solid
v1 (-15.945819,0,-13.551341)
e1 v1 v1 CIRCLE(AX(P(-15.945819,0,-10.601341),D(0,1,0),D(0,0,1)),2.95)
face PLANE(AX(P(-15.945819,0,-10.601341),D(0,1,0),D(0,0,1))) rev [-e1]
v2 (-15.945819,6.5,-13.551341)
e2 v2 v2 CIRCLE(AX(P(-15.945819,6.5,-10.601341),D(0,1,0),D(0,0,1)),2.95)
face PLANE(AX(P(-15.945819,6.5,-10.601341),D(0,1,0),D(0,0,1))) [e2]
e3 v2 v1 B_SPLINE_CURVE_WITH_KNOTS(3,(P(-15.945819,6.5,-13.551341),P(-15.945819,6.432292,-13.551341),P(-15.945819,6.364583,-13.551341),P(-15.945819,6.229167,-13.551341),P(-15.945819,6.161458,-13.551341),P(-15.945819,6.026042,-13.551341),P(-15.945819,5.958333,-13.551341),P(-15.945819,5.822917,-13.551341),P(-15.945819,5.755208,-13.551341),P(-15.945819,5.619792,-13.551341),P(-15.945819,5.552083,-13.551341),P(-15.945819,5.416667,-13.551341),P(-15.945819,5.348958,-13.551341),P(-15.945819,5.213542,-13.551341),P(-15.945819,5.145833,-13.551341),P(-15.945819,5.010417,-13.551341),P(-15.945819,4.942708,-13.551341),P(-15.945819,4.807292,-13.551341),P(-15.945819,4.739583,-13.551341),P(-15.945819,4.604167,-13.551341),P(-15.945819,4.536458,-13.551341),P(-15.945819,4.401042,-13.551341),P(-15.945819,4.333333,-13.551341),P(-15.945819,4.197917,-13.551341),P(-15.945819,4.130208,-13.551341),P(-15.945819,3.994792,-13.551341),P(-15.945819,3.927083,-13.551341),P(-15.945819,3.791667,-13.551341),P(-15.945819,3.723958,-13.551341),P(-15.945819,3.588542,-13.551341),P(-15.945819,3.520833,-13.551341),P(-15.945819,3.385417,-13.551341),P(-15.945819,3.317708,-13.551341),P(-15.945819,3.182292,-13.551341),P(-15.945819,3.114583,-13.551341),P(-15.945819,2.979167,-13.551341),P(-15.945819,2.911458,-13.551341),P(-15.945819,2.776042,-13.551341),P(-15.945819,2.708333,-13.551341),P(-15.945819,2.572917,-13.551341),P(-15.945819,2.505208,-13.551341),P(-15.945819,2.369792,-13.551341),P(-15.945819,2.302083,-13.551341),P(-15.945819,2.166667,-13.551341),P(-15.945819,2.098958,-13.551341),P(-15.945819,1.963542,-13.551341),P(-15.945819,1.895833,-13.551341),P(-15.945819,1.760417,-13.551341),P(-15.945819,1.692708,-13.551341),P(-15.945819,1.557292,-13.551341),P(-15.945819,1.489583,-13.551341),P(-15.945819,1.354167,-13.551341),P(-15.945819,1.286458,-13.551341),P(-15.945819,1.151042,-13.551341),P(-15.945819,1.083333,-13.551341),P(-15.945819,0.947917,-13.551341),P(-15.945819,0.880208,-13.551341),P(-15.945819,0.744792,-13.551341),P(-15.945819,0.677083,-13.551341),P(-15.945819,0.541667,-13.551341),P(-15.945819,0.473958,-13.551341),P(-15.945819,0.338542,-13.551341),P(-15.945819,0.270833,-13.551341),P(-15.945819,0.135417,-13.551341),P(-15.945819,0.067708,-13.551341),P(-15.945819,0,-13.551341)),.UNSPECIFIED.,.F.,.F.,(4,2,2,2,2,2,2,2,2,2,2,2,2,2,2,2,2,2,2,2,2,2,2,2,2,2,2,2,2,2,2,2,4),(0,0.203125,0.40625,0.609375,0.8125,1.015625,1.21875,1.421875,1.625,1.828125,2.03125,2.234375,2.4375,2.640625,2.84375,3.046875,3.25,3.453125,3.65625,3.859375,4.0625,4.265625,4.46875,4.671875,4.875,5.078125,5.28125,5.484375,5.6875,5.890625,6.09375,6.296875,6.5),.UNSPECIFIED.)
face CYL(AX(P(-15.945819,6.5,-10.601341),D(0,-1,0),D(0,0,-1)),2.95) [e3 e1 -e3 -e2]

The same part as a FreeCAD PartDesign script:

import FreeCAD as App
import Part
import Sketcher
from FreeCAD import Vector

doc = App.newDocument("Part")
body = doc.addObject("PartDesign::Body", "Body")

# Sketch on XZ plane
sketch1 = body.newObject("Sketcher::SketchObject", "Sketch")
sketch1.AttachmentSupport = (doc.getObject("XZ_Plane"), [""])
sketch1.MapMode = "FlatFace"
sketch1.addGeometry(Part.Circle(Vector(-15.9, -10.6, 0), Vector(0, 0, 1), 3), False)
sketch1.addConstraint(Sketcher.Constraint("Diameter", 0, 5.9))
sketch1.addConstraint(Sketcher.Constraint("DistanceX", 0, 3, -1, 1, 15.945819))
sketch1.addConstraint(Sketcher.Constraint("DistanceY", 0, 3, -1, 1, 10.601341))
pad1 = body.newObject("PartDesign::Pad", "Pad")
pad1.Profile = sketch1
pad1.Length = 6.5
pad1.Reversed = True

doc.recompute()
